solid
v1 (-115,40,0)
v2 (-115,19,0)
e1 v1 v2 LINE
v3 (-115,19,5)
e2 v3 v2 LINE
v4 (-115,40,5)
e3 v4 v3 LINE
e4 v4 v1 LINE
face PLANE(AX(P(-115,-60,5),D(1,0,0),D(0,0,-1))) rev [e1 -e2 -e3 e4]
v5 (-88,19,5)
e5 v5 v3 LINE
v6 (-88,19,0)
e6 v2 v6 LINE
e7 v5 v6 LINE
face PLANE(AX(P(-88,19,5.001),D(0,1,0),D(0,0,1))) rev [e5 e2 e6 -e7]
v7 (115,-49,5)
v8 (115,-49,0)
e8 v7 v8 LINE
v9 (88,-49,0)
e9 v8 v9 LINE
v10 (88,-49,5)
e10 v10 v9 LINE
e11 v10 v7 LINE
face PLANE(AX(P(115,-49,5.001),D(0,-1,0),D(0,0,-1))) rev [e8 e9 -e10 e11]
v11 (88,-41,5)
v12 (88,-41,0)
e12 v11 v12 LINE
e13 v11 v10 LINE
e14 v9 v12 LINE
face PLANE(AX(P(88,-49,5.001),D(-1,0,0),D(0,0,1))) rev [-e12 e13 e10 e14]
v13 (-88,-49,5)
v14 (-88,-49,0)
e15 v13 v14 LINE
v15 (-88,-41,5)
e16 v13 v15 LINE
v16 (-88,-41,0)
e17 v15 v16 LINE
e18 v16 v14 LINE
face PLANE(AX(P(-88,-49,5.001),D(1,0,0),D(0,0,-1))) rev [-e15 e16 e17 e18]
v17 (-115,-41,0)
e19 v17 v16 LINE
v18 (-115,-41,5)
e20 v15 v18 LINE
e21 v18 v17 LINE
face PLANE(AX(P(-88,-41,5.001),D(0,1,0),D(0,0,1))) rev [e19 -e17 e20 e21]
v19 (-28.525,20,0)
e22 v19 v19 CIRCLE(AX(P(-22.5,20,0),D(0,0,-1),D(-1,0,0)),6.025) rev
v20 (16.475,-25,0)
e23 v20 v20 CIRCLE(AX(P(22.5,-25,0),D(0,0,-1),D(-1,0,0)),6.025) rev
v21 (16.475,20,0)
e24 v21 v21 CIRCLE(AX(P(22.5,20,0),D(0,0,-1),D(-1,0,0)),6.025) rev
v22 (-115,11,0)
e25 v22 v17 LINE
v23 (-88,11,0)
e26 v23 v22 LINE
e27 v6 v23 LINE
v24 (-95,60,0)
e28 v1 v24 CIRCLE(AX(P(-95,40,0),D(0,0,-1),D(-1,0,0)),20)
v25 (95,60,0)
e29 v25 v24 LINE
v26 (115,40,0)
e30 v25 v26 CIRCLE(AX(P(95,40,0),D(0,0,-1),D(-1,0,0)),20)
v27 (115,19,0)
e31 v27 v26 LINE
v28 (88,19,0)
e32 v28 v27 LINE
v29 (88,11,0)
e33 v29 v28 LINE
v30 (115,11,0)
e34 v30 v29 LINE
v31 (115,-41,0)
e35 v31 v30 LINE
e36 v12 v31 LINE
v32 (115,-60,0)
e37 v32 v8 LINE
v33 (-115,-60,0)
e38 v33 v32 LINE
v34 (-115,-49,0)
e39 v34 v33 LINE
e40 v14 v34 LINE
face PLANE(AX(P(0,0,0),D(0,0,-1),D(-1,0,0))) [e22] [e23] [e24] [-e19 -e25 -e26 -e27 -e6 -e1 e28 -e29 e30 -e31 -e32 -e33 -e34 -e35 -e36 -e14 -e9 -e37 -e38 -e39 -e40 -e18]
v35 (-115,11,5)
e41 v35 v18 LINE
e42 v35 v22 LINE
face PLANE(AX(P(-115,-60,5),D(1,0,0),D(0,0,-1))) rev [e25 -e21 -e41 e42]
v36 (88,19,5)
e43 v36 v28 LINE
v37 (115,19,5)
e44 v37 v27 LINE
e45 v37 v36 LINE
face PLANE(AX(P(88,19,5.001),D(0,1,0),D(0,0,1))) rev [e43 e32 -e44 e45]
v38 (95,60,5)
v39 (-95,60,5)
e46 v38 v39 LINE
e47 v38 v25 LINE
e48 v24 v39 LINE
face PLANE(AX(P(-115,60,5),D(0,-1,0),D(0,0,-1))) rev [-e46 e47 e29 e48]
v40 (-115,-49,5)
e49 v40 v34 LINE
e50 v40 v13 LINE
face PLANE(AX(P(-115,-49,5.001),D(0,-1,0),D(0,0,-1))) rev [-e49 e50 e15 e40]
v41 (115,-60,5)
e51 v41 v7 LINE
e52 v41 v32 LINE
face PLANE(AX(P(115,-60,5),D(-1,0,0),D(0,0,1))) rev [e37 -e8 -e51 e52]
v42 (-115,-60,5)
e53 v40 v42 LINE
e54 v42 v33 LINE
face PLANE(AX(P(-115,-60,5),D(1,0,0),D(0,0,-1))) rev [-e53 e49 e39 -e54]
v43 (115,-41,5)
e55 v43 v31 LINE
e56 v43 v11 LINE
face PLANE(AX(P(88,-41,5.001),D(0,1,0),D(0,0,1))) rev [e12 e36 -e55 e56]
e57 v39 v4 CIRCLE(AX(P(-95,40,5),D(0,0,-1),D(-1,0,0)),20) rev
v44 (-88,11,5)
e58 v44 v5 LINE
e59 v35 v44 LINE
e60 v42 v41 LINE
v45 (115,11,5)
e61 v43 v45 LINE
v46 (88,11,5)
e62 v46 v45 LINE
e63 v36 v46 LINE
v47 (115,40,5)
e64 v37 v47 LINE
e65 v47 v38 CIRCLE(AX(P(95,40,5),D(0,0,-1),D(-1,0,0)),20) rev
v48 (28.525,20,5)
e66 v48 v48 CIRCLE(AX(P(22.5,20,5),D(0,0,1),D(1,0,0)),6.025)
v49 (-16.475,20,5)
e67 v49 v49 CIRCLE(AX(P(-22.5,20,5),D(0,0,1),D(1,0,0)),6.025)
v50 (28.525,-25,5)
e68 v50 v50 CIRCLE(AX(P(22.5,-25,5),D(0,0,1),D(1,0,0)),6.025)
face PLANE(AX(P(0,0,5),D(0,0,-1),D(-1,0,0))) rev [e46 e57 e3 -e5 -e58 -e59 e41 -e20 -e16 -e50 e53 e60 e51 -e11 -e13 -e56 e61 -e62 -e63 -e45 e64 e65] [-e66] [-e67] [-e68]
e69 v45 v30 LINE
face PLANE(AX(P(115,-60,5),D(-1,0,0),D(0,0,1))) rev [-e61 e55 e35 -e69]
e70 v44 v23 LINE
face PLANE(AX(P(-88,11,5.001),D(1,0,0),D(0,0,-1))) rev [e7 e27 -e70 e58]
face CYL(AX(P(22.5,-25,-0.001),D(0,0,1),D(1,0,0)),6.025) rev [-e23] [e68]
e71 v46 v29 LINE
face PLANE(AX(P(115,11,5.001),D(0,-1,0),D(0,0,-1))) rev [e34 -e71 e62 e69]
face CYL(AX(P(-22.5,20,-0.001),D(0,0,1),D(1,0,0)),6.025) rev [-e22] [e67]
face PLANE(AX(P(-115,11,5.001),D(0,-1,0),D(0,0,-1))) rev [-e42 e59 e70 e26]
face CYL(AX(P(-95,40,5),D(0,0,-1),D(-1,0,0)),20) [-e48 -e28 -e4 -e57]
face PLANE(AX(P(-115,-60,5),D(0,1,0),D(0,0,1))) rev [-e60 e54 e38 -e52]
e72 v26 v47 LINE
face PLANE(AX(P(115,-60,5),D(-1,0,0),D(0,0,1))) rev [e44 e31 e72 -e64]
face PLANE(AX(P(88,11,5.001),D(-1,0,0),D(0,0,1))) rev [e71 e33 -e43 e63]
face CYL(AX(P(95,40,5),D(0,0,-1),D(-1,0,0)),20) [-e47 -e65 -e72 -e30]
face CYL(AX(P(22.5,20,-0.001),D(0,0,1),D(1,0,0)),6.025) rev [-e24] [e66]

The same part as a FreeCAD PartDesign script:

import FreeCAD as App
import Part
import Sketcher

V = App.Vector


def edges_at(feature, points):
    """Names of the edges that pass closest to the given points."""
    edges = feature.Shape.Edges
    near = lambda p: min(range(len(edges)), key=lambda i: edges[i].distToShape(Part.Vertex(*p))[0])
    return sorted({f"Edge{near(p) + 1}" for p in points})


def add_polygon(sketch, points):
    """Adds a closed chain of lines whose ends are joined by coincident constraints."""
    first, n = sketch.GeometryCount, len(points)
    for a, b in zip(points, points[1:] + points[:1]):
        sketch.addGeometry(Part.LineSegment(App.Vector(*a, 0), App.Vector(*b, 0)), False)
    for i in range(n):
        sketch.addConstraint(Sketcher.Constraint("Coincident", first + i, 2, first + (i + 1) % n, 1))

doc = App.newDocument("Part")
body = doc.addObject("PartDesign::Body", "Body")

# Sketch on XY plane
sketch1 = body.newObject("Sketcher::SketchObject", "Sketch")
sketch1.AttachmentSupport = (doc.getObject("XY_Plane"), [""])
sketch1.MapMode = "FlatFace"
add_polygon(sketch1, [(-115, 60), (-115, -60), (115, -60), (115, 60)])  # lines 0-3
sketch1.addConstraint([
    Sketcher.Constraint("Vertical", 0),
    Sketcher.Constraint("Horizontal", 1),
    Sketcher.Constraint("Vertical", 2),
    Sketcher.Constraint("Horizontal", 3),
    Sketcher.Constraint("Symmetric", 0, 2, 2, 2, -1, 1),
    Sketcher.Constraint("DistanceX", 1, 1, 1, 2, 230.0),
    Sketcher.Constraint("DistanceY", 0, 2, 0, 1, 120.0),
])
pad1 = body.newObject("PartDesign::Pad", "Pad")
pad1.Profile = sketch1
pad1.Length = 5

# Sketch on XY plane
sketch2 = body.newObject("Sketcher::SketchObject", "Sketch001")
sketch2.AttachmentSupport = (doc.getObject("XY_Plane"), [""])
sketch2.MapMode = "FlatFace"
add_polygon(sketch2, [(-88, 19), (-88, 11), (-115, 11), (-115, 19)])  # lines 0-3
sketch2.addConstraint([
    Sketcher.Constraint("Vertical", 0),
    Sketcher.Constraint("Horizontal", 1),
    Sketcher.Constraint("Vertical", 2),
    Sketcher.Constraint("Horizontal", 3),
    Sketcher.Constraint("DistanceX", 1, 2, 1, 1, 27.0),
    Sketcher.Constraint("DistanceY", 0, 2, 0, 1, 8.0),
    Sketcher.Constraint("DistanceX", 0, 2, -1, 1, 88.0),
    Sketcher.Constraint("DistanceY", -1, 1, 0, 2, 11.0),
])
pocket1 = body.newObject("PartDesign::Pocket", "Pocket")
pocket1.Profile = sketch2
pocket1.Type = "UpToFirst"
pocket1.Reversed = True

# Sketch on XY plane
sketch3 = body.newObject("Sketcher::SketchObject", "Sketch002")
sketch3.AttachmentSupport = (doc.getObject("XY_Plane"), [""])
sketch3.MapMode = "FlatFace"
add_polygon(sketch3, [(-88, -41), (-88, -49), (-115, -49), (-115, -41)])  # lines 0-3
sketch3.addConstraint([
    Sketcher.Constraint("Vertical", 0),
    Sketcher.Constraint("Horizontal", 1),
    Sketcher.Constraint("Vertical", 2),
    Sketcher.Constraint("Horizontal", 3),
    Sketcher.Constraint("DistanceX", 1, 2, 1, 1, 27.0),
    Sketcher.Constraint("DistanceY", 0, 2, 0, 1, 8.0),
    Sketcher.Constraint("DistanceX", 0, 2, -1, 1, 88.0),
    Sketcher.Constraint("DistanceY", 0, 2, -1, 1, 49.0),
])
pocket2 = body.newObject("PartDesign::Pocket", "Pocket001")
pocket2.Profile = sketch3
pocket2.Type = "UpToFirst"
pocket2.Reversed = True

# Sketch on XY plane
sketch4 = body.newObject("Sketcher::SketchObject", "Sketch003")
sketch4.AttachmentSupport = (doc.getObject("XY_Plane"), [""])
sketch4.MapMode = "FlatFace"
add_polygon(sketch4, [(115, -41), (115, -49), (88, -49), (88, -41)])  # lines 0-3
sketch4.addConstraint([
    Sketcher.Constraint("Vertical", 0),
    Sketcher.Constraint("Horizontal", 1),
    Sketcher.Constraint("Vertical", 2),
    Sketcher.Constraint("Horizontal", 3),
    Sketcher.Constraint("DistanceX", 1, 2, 1, 1, 27.0),
    Sketcher.Constraint("DistanceY", 0, 2, 0, 1, 8.0),
    Sketcher.Constraint("DistanceX", -1, 1, 0, 2, 115.0),
    Sketcher.Constraint("DistanceY", 0, 2, -1, 1, 49.0),
])
pocket3 = body.newObject("PartDesign::Pocket", "Pocket002")
pocket3.Profile = sketch4
pocket3.Type = "UpToFirst"
pocket3.Reversed = True

# Sketch on XY plane
sketch5 = body.newObject("Sketcher::SketchObject", "Sketch004")
sketch5.AttachmentSupport = (doc.getObject("XY_Plane"), [""])
sketch5.MapMode = "FlatFace"
add_polygon(sketch5, [(115, 19), (115, 11), (88, 11), (88, 19)])  # lines 0-3
sketch5.addConstraint([
    Sketcher.Constraint("Vertical", 0),
    Sketcher.Constraint("Horizontal", 1),
    Sketcher.Constraint("Vertical", 2),
    Sketcher.Constraint("Horizontal", 3),
    Sketcher.Constraint("DistanceX", 1, 2, 1, 1, 27.0),
    Sketcher.Constraint("DistanceY", 0, 2, 0, 1, 8.0),
    Sketcher.Constraint("DistanceX", -1, 1, 0, 2, 115.0),
    Sketcher.Constraint("DistanceY", -1, 1, 0, 2, 11.0),
])
pocket4 = body.newObject("PartDesign::Pocket", "Pocket003")
pocket4.Profile = sketch5
pocket4.Type = "UpToFirst"
pocket4.Reversed = True

# Sketch on XY plane
sketch6 = body.newObject("Sketcher::SketchObject", "Sketch005")
sketch6.AttachmentSupport = (doc.getObject("XY_Plane"), [""])
sketch6.MapMode = "FlatFace"
sketch6.AttachmentOffset = App.Placement(V(0, 0, 5), App.Rotation())
sketch6.addGeometry(Part.Circle(V(22.5, 20, 0), V(0, 0, 1), 6.025), False)
sketch6.addConstraint([
    Sketcher.Constraint("Diameter", 0, 12.05),
    Sketcher.Constraint("DistanceY", -1, 1, 0, 3, 20.0),
    Sketcher.Constraint("DistanceX", -1, 1, 0, 3, 22.5),
])
pocket5 = body.newObject("PartDesign::Pocket", "Pocket004")
pocket5.Profile = sketch6
pocket5.Type = "UpToFirst"

# Sketch on XY plane
sketch7 = body.newObject("Sketcher::SketchObject", "Sketch006")
sketch7.AttachmentSupport = (doc.getObject("XY_Plane"), [""])
sketch7.MapMode = "FlatFace"
sketch7.AttachmentOffset = App.Placement(V(0, 0, 5), App.Rotation())
sketch7.addGeometry(Part.Circle(V(-22.5, 20, 0), V(0, 0, 1), 6.025), False)
sketch7.addConstraint([
    Sketcher.Constraint("Diameter", 0, 12.05),
    Sketcher.Constraint("DistanceY", -1, 1, 0, 3, 20.0),
    Sketcher.Constraint("DistanceX", 0, 3, -1, 1, 22.5),
])
pocket6 = body.newObject("PartDesign::Pocket", "Pocket005")
pocket6.Profile = sketch7
pocket6.Type = "UpToFirst"

# Sketch on XY plane
sketch8 = body.newObject("Sketcher::SketchObject", "Sketch007")
sketch8.AttachmentSupport = (doc.getObject("XY_Plane"), [""])
sketch8.MapMode = "FlatFace"
sketch8.AttachmentOffset = App.Placement(V(0, 0, 5), App.Rotation())
sketch8.addGeometry(Part.Circle(V(22.5, -25, 0), V(0, 0, 1), 6.025), False)
sketch8.addConstraint([
    Sketcher.Constraint("Diameter", 0, 12.05),
    Sketcher.Constraint("DistanceY", 0, 3, -1, 1, 25.0),
    Sketcher.Constraint("DistanceX", -1, 1, 0, 3, 22.5),
])
pocket7 = body.newObject("PartDesign::Pocket", "Pocket006")
pocket7.Profile = sketch8
pocket7.Type = "UpToFirst"
doc.recompute()

fillet = body.newObject("PartDesign::Fillet", "Fillet")
fillet.Base = (pocket7, edges_at(pocket7, [(-115, 60, 2.5), (115, 60, 2.5)]))
fillet.Radius = 20

doc.recompute()
